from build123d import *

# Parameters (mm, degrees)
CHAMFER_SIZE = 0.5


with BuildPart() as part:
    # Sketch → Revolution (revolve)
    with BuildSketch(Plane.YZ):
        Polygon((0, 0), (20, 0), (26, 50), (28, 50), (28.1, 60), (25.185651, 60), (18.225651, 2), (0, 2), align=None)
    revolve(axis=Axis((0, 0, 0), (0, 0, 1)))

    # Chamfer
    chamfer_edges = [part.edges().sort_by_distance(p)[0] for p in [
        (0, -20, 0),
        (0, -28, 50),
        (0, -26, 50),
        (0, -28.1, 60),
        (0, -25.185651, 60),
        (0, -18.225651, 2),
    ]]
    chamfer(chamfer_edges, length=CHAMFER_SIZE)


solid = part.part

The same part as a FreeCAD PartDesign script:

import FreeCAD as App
import Part
import Sketcher
from FreeCAD import Vector
Q = App.Units.Quantity


def edges_at(feature, points):
    """Names of the edges that pass closest to the given points."""
    edges = feature.Shape.Edges
    near = lambda p: min(range(len(edges)), key=lambda i: edges[i].distToShape(Part.Vertex(*p))[0])
    return sorted({f"Edge{near(p) + 1}" for p in points})


def add_polygon(sketch, points):
    """Adds a closed chain of lines whose ends are joined by coincident constraints."""
    first, n = sketch.GeometryCount, len(points)
    for a, b in zip(points, points[1:] + points[:1]):
        sketch.addGeometry(Part.LineSegment(App.Vector(*a, 0), App.Vector(*b, 0)), False)
    for i in range(n):
        sketch.addConstraint(Sketcher.Constraint("Coincident", first + i, 2, first + (i + 1) % n, 1))

doc = App.newDocument("Part")
body = doc.addObject("PartDesign::Body", "Body")

sketch1 = body.newObject("Sketcher::SketchObject", "Sketch")
sketch1.AttachmentSupport = (doc.getObject("YZ_Plane"), [""])
sketch1.MapMode = "FlatFace"
add_polygon(sketch1, [(0, 0), (20, 0), (26, 50), (28, 50), (28.1, 60), (25.2, 60), (18.2, 2), (0, 2)])
sketch1.addConstraint([
    Sketcher.Constraint("Horizontal", 0),
    Sketcher.Constraint("Horizontal", 2),
    Sketcher.Constraint("Horizontal", 4),
    Sketcher.Constraint("Horizontal", 6),
    Sketcher.Constraint("Vertical", 7),
    Sketcher.Constraint("Coincident", 7, 2, -1, 1),
    Sketcher.Constraint("Parallel", 1, 5),
    Sketcher.Constraint("Equal", 2, 7),
    Sketcher.Constraint("DistanceX", 0, 1, 0, 2, Q("20 mm")),
    Sketcher.Constraint("DistanceX", 2, 1, 2, 2, Q("2 mm")),
    Sketcher.Constraint("DistanceX", -1, 1, 1, 2, Q("26 mm")),
    Sketcher.Constraint("DistanceY", -1, 1, 1, 2, Q("50 mm")),
    Sketcher.Constraint("DistanceY", -1, 1, 3, 2, Q("60 mm")),
    Sketcher.Constraint("DistanceX", -1, 1, 3, 2, Q("28.1 mm")),
    Sketcher.Constraint("DistanceX", 4, 2, 4, 1, Q("2.914349 mm")),
])
revolution = body.newObject("PartDesign::Revolution", "Revolution")
revolution.Profile = sketch1
revolution.ReferenceAxis = (sketch1, ["V_Axis"])
revolution.Angle = 360
doc.recompute()

chamfer = body.newObject("PartDesign::Chamfer", "Chamfer")
chamfer.Base = (revolution, edges_at(revolution, [
    (0, -20, 0),
    (0, -28, 50),
    (0, -26, 50),
    (0, -28.1, 60),
    (0, -25.186, 60),
    (0, -18.226, 2),
]))
chamfer.Size = 0.5

doc.recompute()
